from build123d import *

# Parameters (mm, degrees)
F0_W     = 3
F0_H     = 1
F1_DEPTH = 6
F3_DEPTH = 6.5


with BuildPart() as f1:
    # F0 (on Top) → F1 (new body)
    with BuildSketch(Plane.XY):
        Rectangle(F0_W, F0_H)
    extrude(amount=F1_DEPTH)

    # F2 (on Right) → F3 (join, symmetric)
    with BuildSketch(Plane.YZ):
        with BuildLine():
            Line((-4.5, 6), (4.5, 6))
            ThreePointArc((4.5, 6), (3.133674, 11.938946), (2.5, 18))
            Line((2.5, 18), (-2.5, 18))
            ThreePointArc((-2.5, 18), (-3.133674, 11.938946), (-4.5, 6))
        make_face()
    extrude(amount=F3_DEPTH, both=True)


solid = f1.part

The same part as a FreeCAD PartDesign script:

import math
import FreeCAD as App
import Part
import Sketcher
Q = App.Units.Quantity


def add_polygon(sketch, points):
    """Adds a closed chain of lines whose ends are joined by coincident constraints."""
    first, n = sketch.GeometryCount, len(points)
    for a, b in zip(points, points[1:] + points[:1]):
        sketch.addGeometry(Part.LineSegment(App.Vector(*a, 0), App.Vector(*b, 0)), False)
    for i in range(n):
        sketch.addConstraint(Sketcher.Constraint("Coincident", first + i, 2, first + (i + 1) % n, 1))

doc = App.newDocument("Part")
body = doc.addObject("PartDesign::Body", "Body")

# Sketch on XY plane
sketch1 = body.newObject("Sketcher::SketchObject", "Sketch")
sketch1.AttachmentSupport = (doc.getObject("XY_Plane"), [""])
sketch1.MapMode = "FlatFace"
add_polygon(sketch1, [(-1.5, 0.5), (-1.5, -0.5), (1.5, -0.5), (1.5, 0.5)])  # lines 0-3
sketch1.addConstraint([
    Sketcher.Constraint("Vertical", 0),
    Sketcher.Constraint("Horizontal", 1),
    Sketcher.Constraint("Vertical", 2),
    Sketcher.Constraint("Horizontal", 3),
    Sketcher.Constraint("Symmetric", 0, 2, 2, 2, -1, 1),
    Sketcher.Constraint("DistanceX", 1, 1, 1, 2, Q("3 mm")),
    Sketcher.Constraint("DistanceY", 0, 2, 0, 1, Q("1 mm")),
])
pad1 = body.newObject("PartDesign::Pad", "Pad")
pad1.Profile = sketch1
pad1.Length = 6

# Sketch on YZ plane
sketch2 = body.newObject("Sketcher::SketchObject", "Sketch001")
sketch2.AttachmentSupport = (doc.getObject("YZ_Plane"), [""])
sketch2.MapMode = "FlatFace"
sketch2.addGeometry([
    Part.LineSegment(App.Vector(-4, 6, 0), App.Vector(4, 6, 0)),
    Part.ArcOfCircle(Part.Circle(App.Vector(52, 20, 0), App.Vector(0, 0, 1), 50), math.radians(-177.53), math.radians(-163.55)),
    Part.LineSegment(App.Vector(2, 18, 0), App.Vector(-2, 18, 0)),
    Part.ArcOfCircle(Part.Circle(App.Vector(-52, 20, 0), App.Vector(0, 0, 1), 50), math.radians(-16.45), math.radians(-2.47)),
], False)
sketch2.addConstraint([
    Sketcher.Constraint("Coincident", 0, 2, 1, 2),
    Sketcher.Constraint("Coincident", 1, 1, 2, 1),
    Sketcher.Constraint("Coincident", 2, 2, 3, 2),
    Sketcher.Constraint("Coincident", 3, 1, 0, 1),
    Sketcher.Constraint("Horizontal", 0),
    Sketcher.Constraint("Horizontal", 2),
    Sketcher.Constraint("Equal", 1, 3),
    Sketcher.Constraint("Symmetric", 1, 3, 3, 3, -2),
    Sketcher.Constraint("DistanceX", 0, 1, 0, 2, Q("9 mm")),
    Sketcher.Constraint("DistanceX", 2, 2, 2, 1, Q("5 mm")),
    Sketcher.Constraint("DistanceY", -1, 1, 0, 2, Q("6 mm")),
    Sketcher.Constraint("DistanceY", -1, 1, 1, 1, Q("18 mm")),
    Sketcher.Constraint("Radius", 1, Q("50.000036 mm")),
])
pad2 = body.newObject("PartDesign::Pad", "Pad001")
pad2.Profile = sketch2
pad2.Length = 13
pad2.Midplane = True

doc.recompute()
